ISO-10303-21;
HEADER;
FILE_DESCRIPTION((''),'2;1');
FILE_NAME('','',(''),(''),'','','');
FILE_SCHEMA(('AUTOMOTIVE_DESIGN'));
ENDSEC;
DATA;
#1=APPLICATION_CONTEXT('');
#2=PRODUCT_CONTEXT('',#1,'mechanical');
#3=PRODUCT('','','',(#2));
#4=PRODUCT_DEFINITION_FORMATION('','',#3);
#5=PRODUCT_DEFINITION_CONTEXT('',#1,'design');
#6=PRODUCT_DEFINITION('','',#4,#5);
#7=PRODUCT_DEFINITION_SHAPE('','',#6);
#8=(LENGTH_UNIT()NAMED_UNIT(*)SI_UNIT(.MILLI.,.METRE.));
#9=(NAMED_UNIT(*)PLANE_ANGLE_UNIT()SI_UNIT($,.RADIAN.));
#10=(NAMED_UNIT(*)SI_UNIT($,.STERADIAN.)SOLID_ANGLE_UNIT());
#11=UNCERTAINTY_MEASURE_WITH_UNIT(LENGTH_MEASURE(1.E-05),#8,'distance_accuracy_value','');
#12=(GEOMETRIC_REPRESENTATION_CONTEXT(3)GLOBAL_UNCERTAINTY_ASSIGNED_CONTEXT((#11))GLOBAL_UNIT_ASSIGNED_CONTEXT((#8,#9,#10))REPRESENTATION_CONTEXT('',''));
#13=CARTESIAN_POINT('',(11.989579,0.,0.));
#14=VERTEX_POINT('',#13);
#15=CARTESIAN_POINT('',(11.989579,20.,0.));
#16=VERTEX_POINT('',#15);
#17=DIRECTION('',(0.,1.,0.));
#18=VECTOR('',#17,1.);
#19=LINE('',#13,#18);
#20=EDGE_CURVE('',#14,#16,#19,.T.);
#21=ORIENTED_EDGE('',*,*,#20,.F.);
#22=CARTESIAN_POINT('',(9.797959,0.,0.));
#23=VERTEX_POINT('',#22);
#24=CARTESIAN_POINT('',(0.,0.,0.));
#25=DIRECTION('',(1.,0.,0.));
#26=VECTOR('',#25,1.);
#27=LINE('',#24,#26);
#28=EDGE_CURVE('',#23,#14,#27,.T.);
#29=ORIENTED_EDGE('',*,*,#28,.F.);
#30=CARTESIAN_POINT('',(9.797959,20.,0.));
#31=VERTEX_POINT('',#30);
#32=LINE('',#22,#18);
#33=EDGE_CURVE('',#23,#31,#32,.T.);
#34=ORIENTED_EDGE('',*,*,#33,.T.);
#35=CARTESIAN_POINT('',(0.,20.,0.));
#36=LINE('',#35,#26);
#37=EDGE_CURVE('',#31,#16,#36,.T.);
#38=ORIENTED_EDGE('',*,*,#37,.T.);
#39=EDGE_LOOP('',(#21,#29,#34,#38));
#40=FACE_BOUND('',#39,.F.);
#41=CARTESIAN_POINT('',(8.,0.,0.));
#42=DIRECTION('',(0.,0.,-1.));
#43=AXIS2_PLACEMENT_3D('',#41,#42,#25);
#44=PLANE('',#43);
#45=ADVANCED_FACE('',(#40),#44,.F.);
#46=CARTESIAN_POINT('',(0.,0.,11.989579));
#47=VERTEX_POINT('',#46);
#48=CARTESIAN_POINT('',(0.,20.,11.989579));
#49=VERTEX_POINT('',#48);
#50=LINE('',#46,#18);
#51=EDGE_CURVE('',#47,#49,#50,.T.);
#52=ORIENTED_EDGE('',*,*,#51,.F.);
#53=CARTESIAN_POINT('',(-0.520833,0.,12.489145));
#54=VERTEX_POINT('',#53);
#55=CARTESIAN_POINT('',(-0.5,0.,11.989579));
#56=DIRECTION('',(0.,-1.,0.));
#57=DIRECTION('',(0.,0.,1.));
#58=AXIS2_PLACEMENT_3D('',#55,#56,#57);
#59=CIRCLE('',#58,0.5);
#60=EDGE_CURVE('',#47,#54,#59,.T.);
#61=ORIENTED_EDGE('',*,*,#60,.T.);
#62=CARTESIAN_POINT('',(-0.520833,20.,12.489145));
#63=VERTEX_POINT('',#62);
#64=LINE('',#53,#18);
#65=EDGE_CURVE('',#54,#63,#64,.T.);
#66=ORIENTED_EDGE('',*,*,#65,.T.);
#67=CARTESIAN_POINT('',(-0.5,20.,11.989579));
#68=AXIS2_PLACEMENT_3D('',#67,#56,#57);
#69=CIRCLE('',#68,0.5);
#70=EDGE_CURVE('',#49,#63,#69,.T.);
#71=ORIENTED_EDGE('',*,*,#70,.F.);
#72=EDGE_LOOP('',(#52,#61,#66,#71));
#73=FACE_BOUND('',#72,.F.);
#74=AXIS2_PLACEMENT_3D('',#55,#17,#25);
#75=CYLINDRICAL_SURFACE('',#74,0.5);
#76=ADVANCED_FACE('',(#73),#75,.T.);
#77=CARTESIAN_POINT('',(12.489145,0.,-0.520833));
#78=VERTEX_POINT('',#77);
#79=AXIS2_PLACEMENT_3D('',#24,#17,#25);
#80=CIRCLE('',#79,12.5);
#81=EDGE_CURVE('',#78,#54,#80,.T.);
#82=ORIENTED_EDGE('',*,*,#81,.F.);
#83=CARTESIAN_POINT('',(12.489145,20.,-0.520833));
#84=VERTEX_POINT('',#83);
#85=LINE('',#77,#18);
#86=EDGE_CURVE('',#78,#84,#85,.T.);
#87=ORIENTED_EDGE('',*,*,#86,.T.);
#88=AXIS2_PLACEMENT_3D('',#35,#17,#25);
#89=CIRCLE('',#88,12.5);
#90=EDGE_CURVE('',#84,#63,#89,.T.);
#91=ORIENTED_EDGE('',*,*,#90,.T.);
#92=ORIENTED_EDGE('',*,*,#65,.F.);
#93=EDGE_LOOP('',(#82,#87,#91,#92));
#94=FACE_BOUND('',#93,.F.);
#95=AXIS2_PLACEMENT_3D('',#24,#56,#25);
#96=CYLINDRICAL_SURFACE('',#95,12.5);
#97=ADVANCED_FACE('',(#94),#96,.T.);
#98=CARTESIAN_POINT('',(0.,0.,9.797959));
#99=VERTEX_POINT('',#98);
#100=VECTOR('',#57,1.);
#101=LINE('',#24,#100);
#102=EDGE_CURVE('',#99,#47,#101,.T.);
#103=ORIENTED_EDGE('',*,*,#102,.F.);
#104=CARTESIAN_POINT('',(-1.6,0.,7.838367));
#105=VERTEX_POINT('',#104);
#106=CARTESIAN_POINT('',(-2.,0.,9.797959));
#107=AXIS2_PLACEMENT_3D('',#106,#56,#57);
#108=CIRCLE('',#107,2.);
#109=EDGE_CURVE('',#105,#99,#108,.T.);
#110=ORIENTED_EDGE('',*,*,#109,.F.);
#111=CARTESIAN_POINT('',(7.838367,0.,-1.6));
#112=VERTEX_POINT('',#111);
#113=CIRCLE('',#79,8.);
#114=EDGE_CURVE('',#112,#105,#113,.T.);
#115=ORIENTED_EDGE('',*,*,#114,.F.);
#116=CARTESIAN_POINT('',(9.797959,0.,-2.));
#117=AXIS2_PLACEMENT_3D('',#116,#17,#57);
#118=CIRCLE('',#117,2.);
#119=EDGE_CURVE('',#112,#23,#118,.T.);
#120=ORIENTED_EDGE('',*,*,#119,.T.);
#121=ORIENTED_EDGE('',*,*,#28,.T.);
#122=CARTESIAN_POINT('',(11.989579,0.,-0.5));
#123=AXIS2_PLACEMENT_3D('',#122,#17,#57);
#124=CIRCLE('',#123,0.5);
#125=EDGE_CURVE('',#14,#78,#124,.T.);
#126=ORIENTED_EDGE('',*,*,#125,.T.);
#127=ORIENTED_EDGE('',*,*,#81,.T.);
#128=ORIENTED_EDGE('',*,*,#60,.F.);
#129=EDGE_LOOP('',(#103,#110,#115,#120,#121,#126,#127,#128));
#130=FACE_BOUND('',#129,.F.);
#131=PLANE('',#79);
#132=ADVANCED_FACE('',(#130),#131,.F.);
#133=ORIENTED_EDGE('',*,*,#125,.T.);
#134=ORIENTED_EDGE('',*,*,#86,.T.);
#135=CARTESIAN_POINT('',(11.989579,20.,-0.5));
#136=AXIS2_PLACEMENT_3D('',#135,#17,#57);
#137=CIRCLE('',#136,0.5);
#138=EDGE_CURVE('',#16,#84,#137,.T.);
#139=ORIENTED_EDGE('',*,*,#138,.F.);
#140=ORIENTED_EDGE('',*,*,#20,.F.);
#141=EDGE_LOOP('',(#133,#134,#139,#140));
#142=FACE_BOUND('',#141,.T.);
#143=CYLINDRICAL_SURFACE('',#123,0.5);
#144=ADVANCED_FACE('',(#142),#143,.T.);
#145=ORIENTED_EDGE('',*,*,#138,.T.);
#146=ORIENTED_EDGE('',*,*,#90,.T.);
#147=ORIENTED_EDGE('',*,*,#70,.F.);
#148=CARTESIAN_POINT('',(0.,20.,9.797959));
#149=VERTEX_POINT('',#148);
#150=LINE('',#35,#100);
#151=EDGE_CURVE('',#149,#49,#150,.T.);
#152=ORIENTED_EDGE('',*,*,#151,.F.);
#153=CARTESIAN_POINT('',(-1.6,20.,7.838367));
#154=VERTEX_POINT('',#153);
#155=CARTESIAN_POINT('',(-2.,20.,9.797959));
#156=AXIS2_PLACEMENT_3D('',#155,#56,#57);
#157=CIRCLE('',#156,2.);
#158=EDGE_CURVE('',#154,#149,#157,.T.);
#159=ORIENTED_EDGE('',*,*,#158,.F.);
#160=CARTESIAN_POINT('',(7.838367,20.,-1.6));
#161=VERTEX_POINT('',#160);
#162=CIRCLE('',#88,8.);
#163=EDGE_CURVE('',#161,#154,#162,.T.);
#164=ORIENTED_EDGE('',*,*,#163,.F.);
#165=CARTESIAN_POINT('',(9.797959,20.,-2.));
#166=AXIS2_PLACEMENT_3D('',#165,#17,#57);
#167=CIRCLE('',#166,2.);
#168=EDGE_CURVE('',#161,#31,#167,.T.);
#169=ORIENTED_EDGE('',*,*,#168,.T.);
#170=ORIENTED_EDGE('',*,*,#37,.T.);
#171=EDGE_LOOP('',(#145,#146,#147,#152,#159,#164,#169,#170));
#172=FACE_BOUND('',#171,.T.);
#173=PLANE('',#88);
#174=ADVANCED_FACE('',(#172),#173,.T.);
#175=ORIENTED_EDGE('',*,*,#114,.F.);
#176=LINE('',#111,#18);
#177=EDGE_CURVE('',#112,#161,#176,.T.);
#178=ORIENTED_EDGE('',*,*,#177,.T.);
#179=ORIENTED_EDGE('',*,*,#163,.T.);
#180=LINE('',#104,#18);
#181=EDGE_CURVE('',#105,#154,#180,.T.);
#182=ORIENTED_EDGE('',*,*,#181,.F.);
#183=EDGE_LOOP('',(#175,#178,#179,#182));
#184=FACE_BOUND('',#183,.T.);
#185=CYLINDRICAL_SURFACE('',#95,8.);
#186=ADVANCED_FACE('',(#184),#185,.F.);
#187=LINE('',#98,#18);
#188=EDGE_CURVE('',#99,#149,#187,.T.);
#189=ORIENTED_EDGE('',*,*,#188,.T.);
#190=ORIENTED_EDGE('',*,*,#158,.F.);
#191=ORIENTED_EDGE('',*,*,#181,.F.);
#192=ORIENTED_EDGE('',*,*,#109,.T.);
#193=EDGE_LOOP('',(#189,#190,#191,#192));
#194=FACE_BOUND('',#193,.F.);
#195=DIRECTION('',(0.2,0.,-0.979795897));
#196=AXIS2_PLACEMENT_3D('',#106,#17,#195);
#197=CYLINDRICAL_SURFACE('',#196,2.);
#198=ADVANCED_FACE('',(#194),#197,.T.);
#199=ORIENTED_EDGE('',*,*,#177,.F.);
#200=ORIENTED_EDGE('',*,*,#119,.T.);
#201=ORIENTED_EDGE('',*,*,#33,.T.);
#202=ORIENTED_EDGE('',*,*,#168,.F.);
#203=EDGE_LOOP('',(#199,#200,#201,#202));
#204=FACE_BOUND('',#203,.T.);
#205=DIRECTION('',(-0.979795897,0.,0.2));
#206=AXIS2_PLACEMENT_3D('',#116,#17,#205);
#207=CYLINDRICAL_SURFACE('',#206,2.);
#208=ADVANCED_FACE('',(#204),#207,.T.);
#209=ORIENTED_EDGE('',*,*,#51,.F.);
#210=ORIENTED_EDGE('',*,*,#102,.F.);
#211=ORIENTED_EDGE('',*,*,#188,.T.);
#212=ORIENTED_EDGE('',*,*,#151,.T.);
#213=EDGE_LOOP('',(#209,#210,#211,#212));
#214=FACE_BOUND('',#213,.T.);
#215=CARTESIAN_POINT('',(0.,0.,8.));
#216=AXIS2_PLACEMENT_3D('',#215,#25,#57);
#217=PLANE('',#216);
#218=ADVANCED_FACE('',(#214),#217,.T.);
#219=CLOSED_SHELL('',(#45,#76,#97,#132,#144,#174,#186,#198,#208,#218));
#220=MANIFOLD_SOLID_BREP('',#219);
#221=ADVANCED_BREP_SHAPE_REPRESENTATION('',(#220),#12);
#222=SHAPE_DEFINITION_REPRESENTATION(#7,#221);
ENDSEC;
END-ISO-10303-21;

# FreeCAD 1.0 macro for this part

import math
import FreeCAD as App
import Part
import Sketcher
Q = App.Units.Quantity


def edges_at(feature, points):
    """Names of the edges that pass closest to the given points."""
    edges = feature.Shape.Edges
    near = lambda p: min(range(len(edges)), key=lambda i: edges[i].distToShape(Part.Vertex(*p))[0])
    return sorted({f"Edge{near(p) + 1}" for p in points})

doc = App.newDocument("Part")
body = doc.addObject("PartDesign::Body", "Body")

sketch1 = body.newObject("Sketcher::SketchObject", "Sketch")
sketch1.AttachmentSupport = (doc.getObject("XZ_Plane"), [""])
sketch1.MapMode = "FlatFace"
sketch1.addGeometry([
    Part.ArcOfCircle(Part.Circle(App.Vector(0, 0, 0), App.Vector(0, 0, 1), 8), math.radians(90), math.radians(360)),
    Part.LineSegment(App.Vector(8, 0, 0), App.Vector(12.5, 0, 0)),
    Part.ArcOfCircle(Part.Circle(App.Vector(0, 0, 0), App.Vector(0, 0, 1), 12.5), math.radians(90), math.radians(360)),
    Part.LineSegment(App.Vector(0, 12.5, 0), App.Vector(0, 8, 0)),
], False)
sketch1.addConstraint([
    Sketcher.Constraint("Coincident", 0, 2, 1, 1),
    Sketcher.Constraint("Coincident", 1, 2, 2, 2),
    Sketcher.Constraint("Coincident", 2, 1, 3, 1),
    Sketcher.Constraint("Coincident", 3, 2, 0, 1),
    Sketcher.Constraint("Horizontal", 1),
    Sketcher.Constraint("Vertical", 3),
    Sketcher.Constraint("Coincident", 0, 3, -1, 1),
    Sketcher.Constraint("Coincident", 2, 3, -1, 1),
    Sketcher.Constraint("PointOnObject", 0, 2, -1),
    Sketcher.Constraint("PointOnObject", 2, 1, -2),
    Sketcher.Constraint("Radius", 0, Q("8 mm")),
    Sketcher.Constraint("Radius", 2, Q("12.5 mm")),
])
pad1 = body.newObject("PartDesign::Pad", "Pad")
pad1.Profile = sketch1
pad1.Length = 20
pad1.Reversed = True
doc.recompute()

fillet = body.newObject("PartDesign::Fillet", "Fillet")
fillet.Base = (pad1, edges_at(pad1, [(8, 10, 0), (0, 10, 8)]))
fillet.Radius = 2
doc.recompute()

fillet2 = body.newObject("PartDesign::Fillet", "Fillet001")
fillet2.Base = (fillet, edges_at(fillet, [(0, 10, 12.5), (12.5, 10, 0)]))
fillet2.Radius = 0.5

doc.recompute()
